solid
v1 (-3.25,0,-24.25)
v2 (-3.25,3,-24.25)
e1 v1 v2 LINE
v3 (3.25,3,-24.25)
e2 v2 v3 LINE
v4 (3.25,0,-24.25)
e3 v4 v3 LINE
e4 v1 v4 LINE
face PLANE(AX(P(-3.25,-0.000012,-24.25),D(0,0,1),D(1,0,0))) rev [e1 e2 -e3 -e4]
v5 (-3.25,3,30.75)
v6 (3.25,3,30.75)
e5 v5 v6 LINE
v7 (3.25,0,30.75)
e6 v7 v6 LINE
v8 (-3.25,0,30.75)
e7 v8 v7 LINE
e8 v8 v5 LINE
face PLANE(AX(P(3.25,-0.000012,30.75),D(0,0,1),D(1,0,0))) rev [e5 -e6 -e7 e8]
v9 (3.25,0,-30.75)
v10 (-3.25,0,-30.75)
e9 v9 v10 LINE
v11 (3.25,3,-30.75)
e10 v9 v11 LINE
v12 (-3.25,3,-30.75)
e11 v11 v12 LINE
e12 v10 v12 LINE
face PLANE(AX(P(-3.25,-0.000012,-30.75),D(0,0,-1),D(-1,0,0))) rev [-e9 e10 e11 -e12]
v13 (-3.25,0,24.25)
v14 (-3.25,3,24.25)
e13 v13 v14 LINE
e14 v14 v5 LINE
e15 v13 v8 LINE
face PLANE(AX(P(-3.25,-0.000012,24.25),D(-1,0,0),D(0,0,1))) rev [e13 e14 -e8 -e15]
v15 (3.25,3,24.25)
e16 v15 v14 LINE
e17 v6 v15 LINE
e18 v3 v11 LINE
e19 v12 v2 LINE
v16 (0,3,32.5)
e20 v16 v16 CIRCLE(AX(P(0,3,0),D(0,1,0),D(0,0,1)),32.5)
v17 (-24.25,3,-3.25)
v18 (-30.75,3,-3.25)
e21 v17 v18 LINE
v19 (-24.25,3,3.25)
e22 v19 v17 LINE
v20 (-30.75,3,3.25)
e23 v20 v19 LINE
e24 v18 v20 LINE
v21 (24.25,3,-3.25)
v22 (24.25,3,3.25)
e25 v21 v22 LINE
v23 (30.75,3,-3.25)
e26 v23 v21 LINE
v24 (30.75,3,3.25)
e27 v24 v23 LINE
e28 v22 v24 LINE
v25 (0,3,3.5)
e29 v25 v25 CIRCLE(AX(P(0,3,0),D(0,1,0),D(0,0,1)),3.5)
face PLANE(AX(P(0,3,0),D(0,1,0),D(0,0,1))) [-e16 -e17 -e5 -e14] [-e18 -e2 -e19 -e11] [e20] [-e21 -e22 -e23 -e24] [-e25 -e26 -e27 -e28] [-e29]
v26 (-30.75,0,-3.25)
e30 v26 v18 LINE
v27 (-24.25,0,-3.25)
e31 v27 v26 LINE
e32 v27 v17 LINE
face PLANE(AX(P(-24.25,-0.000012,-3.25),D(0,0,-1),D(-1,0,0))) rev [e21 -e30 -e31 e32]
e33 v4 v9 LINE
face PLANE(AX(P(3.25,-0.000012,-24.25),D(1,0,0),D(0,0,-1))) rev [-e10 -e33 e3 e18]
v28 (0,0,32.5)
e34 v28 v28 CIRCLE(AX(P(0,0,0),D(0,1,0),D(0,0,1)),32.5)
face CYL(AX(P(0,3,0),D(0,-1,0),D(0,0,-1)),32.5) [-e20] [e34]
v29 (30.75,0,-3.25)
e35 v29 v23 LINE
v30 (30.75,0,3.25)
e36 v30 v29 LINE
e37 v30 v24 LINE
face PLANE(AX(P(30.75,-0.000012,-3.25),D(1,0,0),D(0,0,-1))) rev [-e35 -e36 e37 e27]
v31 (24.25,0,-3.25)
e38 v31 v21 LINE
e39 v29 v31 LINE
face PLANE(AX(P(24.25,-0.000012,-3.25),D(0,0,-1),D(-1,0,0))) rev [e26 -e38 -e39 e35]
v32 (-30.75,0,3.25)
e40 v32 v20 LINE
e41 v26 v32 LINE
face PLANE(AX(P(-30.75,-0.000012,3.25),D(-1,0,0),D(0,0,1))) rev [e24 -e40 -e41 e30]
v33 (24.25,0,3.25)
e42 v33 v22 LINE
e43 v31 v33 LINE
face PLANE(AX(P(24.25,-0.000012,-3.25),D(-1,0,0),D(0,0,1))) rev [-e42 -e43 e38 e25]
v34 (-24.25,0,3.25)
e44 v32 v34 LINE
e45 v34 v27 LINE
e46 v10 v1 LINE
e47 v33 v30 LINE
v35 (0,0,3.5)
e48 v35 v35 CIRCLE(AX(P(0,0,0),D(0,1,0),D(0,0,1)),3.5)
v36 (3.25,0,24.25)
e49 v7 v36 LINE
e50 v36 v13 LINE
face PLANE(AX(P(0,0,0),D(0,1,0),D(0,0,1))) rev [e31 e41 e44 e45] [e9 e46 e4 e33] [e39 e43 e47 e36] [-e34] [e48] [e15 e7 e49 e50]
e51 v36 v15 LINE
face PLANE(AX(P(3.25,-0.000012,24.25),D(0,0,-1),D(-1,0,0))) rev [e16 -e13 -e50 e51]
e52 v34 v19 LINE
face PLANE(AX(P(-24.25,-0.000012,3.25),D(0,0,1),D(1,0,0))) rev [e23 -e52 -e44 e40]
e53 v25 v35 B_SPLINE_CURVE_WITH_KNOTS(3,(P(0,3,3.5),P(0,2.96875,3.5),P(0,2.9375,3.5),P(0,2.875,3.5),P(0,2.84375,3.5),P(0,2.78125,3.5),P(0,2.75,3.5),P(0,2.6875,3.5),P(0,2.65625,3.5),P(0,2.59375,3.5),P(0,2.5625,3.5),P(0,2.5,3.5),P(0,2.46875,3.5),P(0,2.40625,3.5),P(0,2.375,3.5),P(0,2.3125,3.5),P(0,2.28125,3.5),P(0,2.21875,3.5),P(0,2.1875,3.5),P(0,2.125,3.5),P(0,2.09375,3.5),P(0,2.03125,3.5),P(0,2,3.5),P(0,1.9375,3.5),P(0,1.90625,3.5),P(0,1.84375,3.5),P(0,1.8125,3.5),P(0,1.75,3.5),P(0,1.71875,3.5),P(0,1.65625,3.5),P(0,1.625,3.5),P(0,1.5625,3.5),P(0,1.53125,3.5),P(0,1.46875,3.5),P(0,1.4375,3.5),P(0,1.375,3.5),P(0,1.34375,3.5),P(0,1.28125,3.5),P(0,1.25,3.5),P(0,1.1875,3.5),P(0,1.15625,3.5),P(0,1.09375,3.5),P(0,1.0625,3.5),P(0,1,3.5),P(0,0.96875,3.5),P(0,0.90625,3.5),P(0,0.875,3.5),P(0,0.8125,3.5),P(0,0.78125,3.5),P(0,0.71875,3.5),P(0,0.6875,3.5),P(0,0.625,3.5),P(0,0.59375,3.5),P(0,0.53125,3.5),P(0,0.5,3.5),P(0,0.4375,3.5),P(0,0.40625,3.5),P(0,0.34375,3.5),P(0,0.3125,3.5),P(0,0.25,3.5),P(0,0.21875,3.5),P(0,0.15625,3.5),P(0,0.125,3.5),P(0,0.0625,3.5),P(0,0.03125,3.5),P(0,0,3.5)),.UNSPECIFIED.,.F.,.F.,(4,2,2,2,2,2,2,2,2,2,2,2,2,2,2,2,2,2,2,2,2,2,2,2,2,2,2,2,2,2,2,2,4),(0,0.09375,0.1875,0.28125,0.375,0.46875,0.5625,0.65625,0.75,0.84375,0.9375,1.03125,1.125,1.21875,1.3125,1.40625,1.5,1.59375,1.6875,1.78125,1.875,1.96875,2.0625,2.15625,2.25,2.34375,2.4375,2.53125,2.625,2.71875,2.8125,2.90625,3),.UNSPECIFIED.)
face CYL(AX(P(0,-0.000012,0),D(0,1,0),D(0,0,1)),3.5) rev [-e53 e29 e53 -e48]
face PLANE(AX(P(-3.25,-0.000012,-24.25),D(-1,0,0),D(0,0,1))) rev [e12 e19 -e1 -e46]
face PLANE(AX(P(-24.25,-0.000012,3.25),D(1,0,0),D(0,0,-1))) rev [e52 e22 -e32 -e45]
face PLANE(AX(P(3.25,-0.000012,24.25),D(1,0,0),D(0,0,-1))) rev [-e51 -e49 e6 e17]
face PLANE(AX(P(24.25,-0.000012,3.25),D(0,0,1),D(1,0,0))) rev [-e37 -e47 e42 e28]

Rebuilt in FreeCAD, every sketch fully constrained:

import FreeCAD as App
import Part
import Sketcher

V = App.Vector


def add_polygon(sketch, points):
    """Adds a closed chain of lines whose ends are joined by coincident constraints."""
    first, n = sketch.GeometryCount, len(points)
    for a, b in zip(points, points[1:] + points[:1]):
        sketch.addGeometry(Part.LineSegment(App.Vector(*a, 0), App.Vector(*b, 0)), False)
    for i in range(n):
        sketch.addConstraint(Sketcher.Constraint("Coincident", first + i, 2, first + (i + 1) % n, 1))

doc = App.newDocument("Part")
body = doc.addObject("PartDesign::Body", "Body")

# Sketch on XZ plane
sketch1 = doc.addObject("Sketcher::SketchObject", "Sketch")
body.addObject(sketch1)
sketch1.AttachmentSupport = (doc.XZ_Plane, [""])
sketch1.MapMode = "FlatFace"
sketch1.addGeometry(Part.Circle(V(0, 0, 0), V(0, 0, 1), 32), False)
sketch1.addConstraint([
    Sketcher.Constraint("Coincident", 0, 3, -1, 1),
    Sketcher.Constraint("Diameter", 0, 65.0),
])
pad1 = doc.addObject("PartDesign::Pad", "Pad")
body.addObject(pad1)
pad1.Profile = sketch1
pad1.Length = 3
pad1.Reversed = True

# Sketch on XZ plane
sketch2 = doc.addObject("Sketcher::SketchObject", "Sketch001")
body.addObject(sketch2)
sketch2.AttachmentSupport = (doc.XZ_Plane, [""])
sketch2.MapMode = "FlatFace"
sketch2.addGeometry(Part.Circle(V(0, 0, 0), V(0, 0, 1), 3.5), False)  # 0
add_polygon(sketch2, [(-3.2, 24.2), (-3.2, 30.8), (3.2, 30.8), (3.2, 24.2)])  # lines 1-4
add_polygon(sketch2, [(24.2, -3.2), (24.2, 3.2), (30.8, 3.2), (30.8, -3.2)])  # lines 5-8
add_polygon(sketch2, [(-30.8, -3.2), (-30.8, 3.2), (-24.2, 3.2), (-24.2, -3.2)])  # lines 9-12
add_polygon(sketch2, [(-3.2, -30.8), (-3.2, -24.2), (3.2, -24.2), (3.2, -30.8)])  # lines 13-16
sketch2.addConstraint([
    Sketcher.Constraint("Vertical", 1),
    Sketcher.Constraint("Horizontal", 2),
    Sketcher.Constraint("Vertical", 3),
    Sketcher.Constraint("Horizontal", 4),
    Sketcher.Constraint("Vertical", 5),
    Sketcher.Constraint("Horizontal", 6),
    Sketcher.Constraint("Vertical", 7),
    Sketcher.Constraint("Horizontal", 8),
    Sketcher.Constraint("Vertical", 9),
    Sketcher.Constraint("Horizontal", 10),
    Sketcher.Constraint("Vertical", 11),
    Sketcher.Constraint("Horizontal", 12),
    Sketcher.Constraint("Vertical", 13),
    Sketcher.Constraint("Horizontal", 14),
    Sketcher.Constraint("Vertical", 15),
    Sketcher.Constraint("Horizontal", 16),
    Sketcher.Constraint("Coincident", 0, 3, -1, 1),
    Sketcher.Constraint("Symmetric", 7, 2, 9, 2, -1, 1),
    Sketcher.Constraint("Symmetric", 5, 2, 11, 2, -1, 1),
    Sketcher.Constraint("Symmetric", 3, 2, 13, 2, -1, 1),
    Sketcher.Constraint("Symmetric", 1, 2, 15, 2, -1, 1),
    Sketcher.Constraint("Horizontal", 6, 2, 9, 2),
    Sketcher.Constraint("Vertical", 4, 2, 13, 2),
    Sketcher.Constraint("Equal", 4, 6),
    Sketcher.Constraint("Equal", 16, 1),
    Sketcher.Constraint("Equal", 3, 5),
    Sketcher.Constraint("Diameter", 0, 7.0),
    Sketcher.Constraint("DistanceX", 2, 1, 2, 2, 6.5),
    Sketcher.Constraint("DistanceX", 3, 2, 5, 2, 21.0),
    Sketcher.Constraint("DistanceY", 5, 2, 3, 2, 21.0),
])
pocket1 = doc.addObject("PartDesign::Pocket", "Pocket")
body.addObject(pocket1)
pocket1.Profile = sketch2
pocket1.Type = "ThroughAll"
pocket1.Midplane = True

doc.recompute()
